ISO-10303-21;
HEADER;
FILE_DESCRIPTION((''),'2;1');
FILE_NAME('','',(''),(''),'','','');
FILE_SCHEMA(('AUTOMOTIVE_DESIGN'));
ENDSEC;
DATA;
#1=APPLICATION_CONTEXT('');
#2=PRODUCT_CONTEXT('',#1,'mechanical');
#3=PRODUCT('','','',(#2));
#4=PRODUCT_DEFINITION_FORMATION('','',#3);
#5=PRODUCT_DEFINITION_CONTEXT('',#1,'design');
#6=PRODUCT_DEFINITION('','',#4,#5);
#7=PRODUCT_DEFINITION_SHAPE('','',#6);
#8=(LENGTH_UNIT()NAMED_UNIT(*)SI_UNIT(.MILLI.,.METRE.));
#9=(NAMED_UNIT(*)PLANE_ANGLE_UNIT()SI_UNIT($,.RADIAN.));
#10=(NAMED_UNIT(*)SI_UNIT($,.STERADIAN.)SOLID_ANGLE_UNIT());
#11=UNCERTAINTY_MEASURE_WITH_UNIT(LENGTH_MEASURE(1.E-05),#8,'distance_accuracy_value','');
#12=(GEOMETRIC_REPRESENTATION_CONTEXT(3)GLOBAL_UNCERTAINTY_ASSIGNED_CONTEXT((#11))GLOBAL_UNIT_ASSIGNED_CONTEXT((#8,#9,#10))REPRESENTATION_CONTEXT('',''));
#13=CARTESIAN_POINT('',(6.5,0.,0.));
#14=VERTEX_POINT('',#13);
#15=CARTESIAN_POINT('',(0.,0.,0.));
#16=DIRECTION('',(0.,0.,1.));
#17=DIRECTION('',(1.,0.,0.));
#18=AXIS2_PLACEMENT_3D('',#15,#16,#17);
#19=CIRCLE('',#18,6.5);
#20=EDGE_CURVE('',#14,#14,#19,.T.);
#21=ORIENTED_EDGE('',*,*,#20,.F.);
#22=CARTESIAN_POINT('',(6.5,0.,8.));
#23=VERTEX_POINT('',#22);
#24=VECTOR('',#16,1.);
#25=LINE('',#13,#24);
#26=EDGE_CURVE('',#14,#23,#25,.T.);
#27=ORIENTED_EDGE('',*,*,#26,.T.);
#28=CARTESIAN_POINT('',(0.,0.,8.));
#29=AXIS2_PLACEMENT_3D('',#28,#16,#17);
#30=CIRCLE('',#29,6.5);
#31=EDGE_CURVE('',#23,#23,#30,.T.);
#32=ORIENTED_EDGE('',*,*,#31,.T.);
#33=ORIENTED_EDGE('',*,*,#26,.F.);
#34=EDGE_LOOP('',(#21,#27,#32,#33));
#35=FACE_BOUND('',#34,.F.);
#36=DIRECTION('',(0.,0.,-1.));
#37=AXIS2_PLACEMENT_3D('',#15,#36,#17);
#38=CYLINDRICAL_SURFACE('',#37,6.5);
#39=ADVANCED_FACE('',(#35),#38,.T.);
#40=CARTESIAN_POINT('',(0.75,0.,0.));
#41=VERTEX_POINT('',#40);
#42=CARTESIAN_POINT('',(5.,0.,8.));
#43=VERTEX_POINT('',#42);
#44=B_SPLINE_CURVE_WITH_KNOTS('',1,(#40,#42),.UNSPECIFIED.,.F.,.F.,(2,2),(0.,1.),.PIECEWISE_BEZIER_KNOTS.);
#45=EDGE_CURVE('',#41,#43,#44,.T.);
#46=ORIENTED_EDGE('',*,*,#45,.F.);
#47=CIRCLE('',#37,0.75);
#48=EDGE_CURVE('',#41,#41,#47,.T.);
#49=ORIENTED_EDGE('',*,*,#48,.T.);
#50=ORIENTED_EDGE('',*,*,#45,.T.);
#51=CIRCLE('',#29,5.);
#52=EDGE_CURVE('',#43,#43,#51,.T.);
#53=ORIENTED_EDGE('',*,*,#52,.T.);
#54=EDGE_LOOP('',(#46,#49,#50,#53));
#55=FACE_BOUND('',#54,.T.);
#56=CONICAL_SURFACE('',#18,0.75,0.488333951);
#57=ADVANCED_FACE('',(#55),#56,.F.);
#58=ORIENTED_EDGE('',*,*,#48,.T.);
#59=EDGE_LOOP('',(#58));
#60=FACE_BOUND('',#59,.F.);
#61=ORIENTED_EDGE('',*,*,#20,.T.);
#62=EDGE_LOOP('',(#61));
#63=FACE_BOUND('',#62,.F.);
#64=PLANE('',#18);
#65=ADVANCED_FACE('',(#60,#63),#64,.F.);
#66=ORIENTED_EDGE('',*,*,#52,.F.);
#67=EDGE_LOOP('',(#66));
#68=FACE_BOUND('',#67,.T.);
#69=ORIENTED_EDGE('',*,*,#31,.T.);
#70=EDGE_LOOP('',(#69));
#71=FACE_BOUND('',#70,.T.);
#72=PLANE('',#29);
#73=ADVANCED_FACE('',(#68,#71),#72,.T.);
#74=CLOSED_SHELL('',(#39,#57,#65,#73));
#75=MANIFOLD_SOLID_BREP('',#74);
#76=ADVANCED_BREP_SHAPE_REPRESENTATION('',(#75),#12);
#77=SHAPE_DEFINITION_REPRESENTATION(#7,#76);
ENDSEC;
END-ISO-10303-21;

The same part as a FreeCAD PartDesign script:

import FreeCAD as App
import Part
import Sketcher

doc = App.newDocument("Part")
body = doc.addObject("PartDesign::Body", "Body")

# Sketch on XY plane
sketch1 = body.newObject("Sketcher::SketchObject", "Sketch")
sketch1.AttachmentSupport = (doc.getObject("XY_Plane"), [""])
sketch1.MapMode = "FlatFace"
sketch1.addGeometry(Part.Circle(App.Vector(0, 0, 0), App.Vector(0, 0, 1), 6), False)
sketch1.addConstraint([
    Sketcher.Constraint("Coincident", 0, 3, -1, 1),
    Sketcher.Constraint("Diameter", 0, 13.0),
])
pad1 = body.newObject("PartDesign::Pad", "Pad")
pad1.Profile = sketch1
pad1.Length = 8

# Sketch on XY plane
sketch2 = body.newObject("Sketcher::SketchObject", "Sketch001")
sketch2.AttachmentSupport = (doc.getObject("XY_Plane"), [""])
sketch2.MapMode = "FlatFace"
sketch2.addGeometry(Part.Circle(App.Vector(0, 0, 0), App.Vector(0, 0, 1), 0.8), False)
sketch2.addConstraint([
    Sketcher.Constraint("Coincident", 0, 3, -1, 1),
    Sketcher.Constraint("Diameter", 0, 1.5),
])

# Sketch on XY plane
sketch3 = body.newObject("Sketcher::SketchObject", "Sketch002")
sketch3.AttachmentSupport = (doc.getObject("XY_Plane"), [""])
sketch3.MapMode = "FlatFace"
sketch3.AttachmentOffset = App.Placement(App.Vector(0, 0, 8), App.Rotation())
sketch3.addGeometry(Part.Circle(App.Vector(0, 0, 0), App.Vector(0, 0, 1), 5), False)
sketch3.addConstraint([
    Sketcher.Constraint("Coincident", 0, 3, -1, 1),
    Sketcher.Constraint("Diameter", 0, 10.0),
])

subtractiveloft = body.newObject("PartDesign::SubtractiveLoft", "SubtractiveLoft")
subtractiveloft.Profile = sketch2
subtractiveloft.Sections = [sketch3]

doc.recompute()
